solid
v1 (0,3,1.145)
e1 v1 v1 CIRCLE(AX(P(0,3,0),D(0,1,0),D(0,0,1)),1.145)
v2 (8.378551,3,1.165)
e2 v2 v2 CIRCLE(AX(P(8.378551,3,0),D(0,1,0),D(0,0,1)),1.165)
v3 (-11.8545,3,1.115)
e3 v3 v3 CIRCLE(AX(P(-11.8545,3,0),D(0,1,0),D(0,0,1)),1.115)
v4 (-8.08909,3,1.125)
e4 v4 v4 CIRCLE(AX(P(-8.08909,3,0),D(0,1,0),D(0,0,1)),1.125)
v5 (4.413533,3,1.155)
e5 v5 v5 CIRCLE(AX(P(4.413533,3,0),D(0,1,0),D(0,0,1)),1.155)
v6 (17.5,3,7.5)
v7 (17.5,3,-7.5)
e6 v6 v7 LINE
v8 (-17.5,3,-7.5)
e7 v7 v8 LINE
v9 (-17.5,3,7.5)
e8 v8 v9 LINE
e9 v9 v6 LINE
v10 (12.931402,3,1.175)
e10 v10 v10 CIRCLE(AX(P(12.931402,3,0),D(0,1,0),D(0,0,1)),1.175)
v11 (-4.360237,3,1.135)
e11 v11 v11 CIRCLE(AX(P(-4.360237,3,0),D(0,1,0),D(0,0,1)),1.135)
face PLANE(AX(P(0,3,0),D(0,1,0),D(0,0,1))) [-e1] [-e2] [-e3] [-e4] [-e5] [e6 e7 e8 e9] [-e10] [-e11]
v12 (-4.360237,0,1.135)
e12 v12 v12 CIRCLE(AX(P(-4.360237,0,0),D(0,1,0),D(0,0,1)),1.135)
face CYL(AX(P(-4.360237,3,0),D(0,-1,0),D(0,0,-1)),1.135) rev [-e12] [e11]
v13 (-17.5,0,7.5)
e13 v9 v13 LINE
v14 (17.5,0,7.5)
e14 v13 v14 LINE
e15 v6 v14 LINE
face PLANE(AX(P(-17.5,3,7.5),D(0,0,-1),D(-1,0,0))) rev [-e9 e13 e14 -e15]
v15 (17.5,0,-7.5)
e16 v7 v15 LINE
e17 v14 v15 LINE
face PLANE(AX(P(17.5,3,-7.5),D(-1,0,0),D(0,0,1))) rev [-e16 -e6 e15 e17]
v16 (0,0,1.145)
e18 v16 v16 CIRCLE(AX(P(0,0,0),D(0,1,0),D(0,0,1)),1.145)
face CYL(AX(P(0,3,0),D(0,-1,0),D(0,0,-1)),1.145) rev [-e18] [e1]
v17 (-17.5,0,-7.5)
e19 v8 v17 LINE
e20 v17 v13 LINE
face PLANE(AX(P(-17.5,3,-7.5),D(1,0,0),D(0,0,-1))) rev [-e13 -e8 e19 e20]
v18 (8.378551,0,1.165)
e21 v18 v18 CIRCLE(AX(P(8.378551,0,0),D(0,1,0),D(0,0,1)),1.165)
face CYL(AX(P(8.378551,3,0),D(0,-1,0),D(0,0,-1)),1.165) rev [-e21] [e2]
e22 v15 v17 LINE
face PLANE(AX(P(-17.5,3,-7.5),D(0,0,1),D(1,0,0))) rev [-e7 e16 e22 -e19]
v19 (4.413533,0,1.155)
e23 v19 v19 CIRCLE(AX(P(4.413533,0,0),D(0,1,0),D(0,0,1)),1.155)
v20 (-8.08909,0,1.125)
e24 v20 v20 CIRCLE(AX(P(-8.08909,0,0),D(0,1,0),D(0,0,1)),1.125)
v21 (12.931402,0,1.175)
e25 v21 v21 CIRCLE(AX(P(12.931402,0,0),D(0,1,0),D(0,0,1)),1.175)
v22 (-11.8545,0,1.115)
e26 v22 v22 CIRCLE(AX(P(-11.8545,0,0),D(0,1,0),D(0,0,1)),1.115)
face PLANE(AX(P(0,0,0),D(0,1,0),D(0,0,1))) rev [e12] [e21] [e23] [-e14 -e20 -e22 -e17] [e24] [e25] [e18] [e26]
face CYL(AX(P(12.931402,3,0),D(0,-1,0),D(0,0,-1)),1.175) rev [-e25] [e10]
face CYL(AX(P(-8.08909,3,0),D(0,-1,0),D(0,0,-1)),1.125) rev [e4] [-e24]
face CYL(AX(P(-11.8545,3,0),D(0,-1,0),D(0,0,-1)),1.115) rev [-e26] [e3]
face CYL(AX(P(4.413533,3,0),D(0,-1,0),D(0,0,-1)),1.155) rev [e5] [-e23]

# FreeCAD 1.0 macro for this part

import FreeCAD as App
import Part
import Sketcher

V = App.Vector
Q = App.Units.Quantity


def add_polygon(sketch, points):
    """Adds a closed chain of lines whose ends are joined by coincident constraints."""
    first, n = sketch.GeometryCount, len(points)
    for a, b in zip(points, points[1:] + points[:1]):
        sketch.addGeometry(Part.LineSegment(App.Vector(*a, 0), App.Vector(*b, 0)), False)
    for i in range(n):
        sketch.addConstraint(Sketcher.Constraint("Coincident", first + i, 2, first + (i + 1) % n, 1))

doc = App.newDocument("Part")
params = doc.addObject("Spreadsheet::Sheet", "Params")
for row, (alias, value) in enumerate([
    ("sketch1_diameter", "2.23 mm"),
    ("sketch1_diameter2", "2.25 mm"),
    ("sketch1_diameter3", "2.27 mm"),
    ("sketch1_diameter4", "2.29 mm"),
    ("sketch1_diameter5", "2.31 mm"),
    ("pad1_length", "3 mm"),
], start=1):
    params.set(f"A{row}", alias)
    params.set(f"B{row}", "=" + value)
    params.setAlias(f"B{row}", alias)

body = doc.addObject("PartDesign::Body", "Body")

# Sketch on XZ plane
sketch1 = doc.addObject("Sketcher::SketchObject", "Sketch")
body.addObject(sketch1)
sketch1.AttachmentSupport = (doc.XZ_Plane, [""])
sketch1.MapMode = "FlatFace"
add_polygon(sketch1, [(-17.5, -7.5), (-17.5, 7.5), (17.5, 7.5), (17.5, -7.5)])  # lines 0-3
sketch1.addGeometry(Part.Circle(V(-11.9, 0, 0), V(0, 0, 1), 1.1), False)  # 4
sketch1.addGeometry(Part.Circle(V(-8.1, 0, 0), V(0, 0, 1), 1.1), False)  # 5
sketch1.addGeometry(Part.Circle(V(-4.4, 0, 0), V(0, 0, 1), 1.1), False)  # 6
sketch1.addGeometry(Part.Circle(V(0, 0, 0), V(0, 0, 1), 1.1), False)  # 7
sketch1.addGeometry(Part.Circle(V(4.4, 0, 0), V(0, 0, 1), 1.2), False)  # 8
sketch1.addGeometry(Part.Circle(V(8.4, 0, 0), V(0, 0, 1), 1.2), False)  # 9
sketch1.addGeometry(Part.Circle(V(12.9, 0, 0), V(0, 0, 1), 1.2), False)  # 10
sketch1.addConstraint([
    Sketcher.Constraint("Vertical", 0),
    Sketcher.Constraint("Horizontal", 1),
    Sketcher.Constraint("Vertical", 2),
    Sketcher.Constraint("Horizontal", 3),
    Sketcher.Constraint("Coincident", 7, 3, -1, 1),
    Sketcher.Constraint("Symmetric", 0, 2, 2, 2, -1, 1),
    Sketcher.Constraint("PointOnObject", 4, 3, -1),
    Sketcher.Constraint("PointOnObject", 5, 3, -1),
    Sketcher.Constraint("PointOnObject", 6, 3, -1),
    Sketcher.Constraint("PointOnObject", 8, 3, -1),
    Sketcher.Constraint("PointOnObject", 9, 3, -1),
    Sketcher.Constraint("PointOnObject", 10, 3, -1),
    Sketcher.Constraint("Diameter", 4, Q("2.23 mm")),
    Sketcher.Constraint("Diameter", 5, Q("2.25 mm")),
    Sketcher.Constraint("Diameter", 6, Q("2.27 mm")),
    Sketcher.Constraint("Diameter", 7, Q("2.29 mm")),
    Sketcher.Constraint("Diameter", 8, Q("2.31 mm")),
    Sketcher.Constraint("Diameter", 9, Q("2.33 mm")),
    Sketcher.Constraint("Diameter", 10, Q("2.35 mm")),
    Sketcher.Constraint("DistanceX", 1, 1, 1, 2, Q("35 mm")),
    Sketcher.Constraint("DistanceY", 0, 1, 0, 2, Q("15 mm")),
    Sketcher.Constraint("DistanceX", 4, 3, -1, 1, Q("11.8545 mm")),
    Sketcher.Constraint("DistanceX", -1, 1, 10, 3, Q("12.931402 mm")),
    Sketcher.Constraint("DistanceX", 5, 3, -1, 1, Q("8.08909 mm")),
    Sketcher.Constraint("DistanceX", -1, 1, 9, 3, Q("8.378551 mm")),
    Sketcher.Constraint("DistanceX", 6, 3, 8, 3, Q("8.77377 mm")),
    Sketcher.Constraint("DistanceX", 6, 3, 9, 3, Q("12.738788 mm")),
])
sketch1.setExpression("Constraints[16]", "Params.sketch1_diameter")
sketch1.setExpression("Constraints[17]", "Params.sketch1_diameter2")
sketch1.setExpression("Constraints[18]", "Params.sketch1_diameter3")
sketch1.setExpression("Constraints[19]", "Params.sketch1_diameter4")
sketch1.setExpression("Constraints[20]", "Params.sketch1_diameter5")
pad1 = doc.addObject("PartDesign::Pad", "Pad")
body.addObject(pad1)
pad1.Profile = sketch1
pad1.setExpression("Length", "Params.pad1_length")
pad1.Reversed = True

doc.recompute()
